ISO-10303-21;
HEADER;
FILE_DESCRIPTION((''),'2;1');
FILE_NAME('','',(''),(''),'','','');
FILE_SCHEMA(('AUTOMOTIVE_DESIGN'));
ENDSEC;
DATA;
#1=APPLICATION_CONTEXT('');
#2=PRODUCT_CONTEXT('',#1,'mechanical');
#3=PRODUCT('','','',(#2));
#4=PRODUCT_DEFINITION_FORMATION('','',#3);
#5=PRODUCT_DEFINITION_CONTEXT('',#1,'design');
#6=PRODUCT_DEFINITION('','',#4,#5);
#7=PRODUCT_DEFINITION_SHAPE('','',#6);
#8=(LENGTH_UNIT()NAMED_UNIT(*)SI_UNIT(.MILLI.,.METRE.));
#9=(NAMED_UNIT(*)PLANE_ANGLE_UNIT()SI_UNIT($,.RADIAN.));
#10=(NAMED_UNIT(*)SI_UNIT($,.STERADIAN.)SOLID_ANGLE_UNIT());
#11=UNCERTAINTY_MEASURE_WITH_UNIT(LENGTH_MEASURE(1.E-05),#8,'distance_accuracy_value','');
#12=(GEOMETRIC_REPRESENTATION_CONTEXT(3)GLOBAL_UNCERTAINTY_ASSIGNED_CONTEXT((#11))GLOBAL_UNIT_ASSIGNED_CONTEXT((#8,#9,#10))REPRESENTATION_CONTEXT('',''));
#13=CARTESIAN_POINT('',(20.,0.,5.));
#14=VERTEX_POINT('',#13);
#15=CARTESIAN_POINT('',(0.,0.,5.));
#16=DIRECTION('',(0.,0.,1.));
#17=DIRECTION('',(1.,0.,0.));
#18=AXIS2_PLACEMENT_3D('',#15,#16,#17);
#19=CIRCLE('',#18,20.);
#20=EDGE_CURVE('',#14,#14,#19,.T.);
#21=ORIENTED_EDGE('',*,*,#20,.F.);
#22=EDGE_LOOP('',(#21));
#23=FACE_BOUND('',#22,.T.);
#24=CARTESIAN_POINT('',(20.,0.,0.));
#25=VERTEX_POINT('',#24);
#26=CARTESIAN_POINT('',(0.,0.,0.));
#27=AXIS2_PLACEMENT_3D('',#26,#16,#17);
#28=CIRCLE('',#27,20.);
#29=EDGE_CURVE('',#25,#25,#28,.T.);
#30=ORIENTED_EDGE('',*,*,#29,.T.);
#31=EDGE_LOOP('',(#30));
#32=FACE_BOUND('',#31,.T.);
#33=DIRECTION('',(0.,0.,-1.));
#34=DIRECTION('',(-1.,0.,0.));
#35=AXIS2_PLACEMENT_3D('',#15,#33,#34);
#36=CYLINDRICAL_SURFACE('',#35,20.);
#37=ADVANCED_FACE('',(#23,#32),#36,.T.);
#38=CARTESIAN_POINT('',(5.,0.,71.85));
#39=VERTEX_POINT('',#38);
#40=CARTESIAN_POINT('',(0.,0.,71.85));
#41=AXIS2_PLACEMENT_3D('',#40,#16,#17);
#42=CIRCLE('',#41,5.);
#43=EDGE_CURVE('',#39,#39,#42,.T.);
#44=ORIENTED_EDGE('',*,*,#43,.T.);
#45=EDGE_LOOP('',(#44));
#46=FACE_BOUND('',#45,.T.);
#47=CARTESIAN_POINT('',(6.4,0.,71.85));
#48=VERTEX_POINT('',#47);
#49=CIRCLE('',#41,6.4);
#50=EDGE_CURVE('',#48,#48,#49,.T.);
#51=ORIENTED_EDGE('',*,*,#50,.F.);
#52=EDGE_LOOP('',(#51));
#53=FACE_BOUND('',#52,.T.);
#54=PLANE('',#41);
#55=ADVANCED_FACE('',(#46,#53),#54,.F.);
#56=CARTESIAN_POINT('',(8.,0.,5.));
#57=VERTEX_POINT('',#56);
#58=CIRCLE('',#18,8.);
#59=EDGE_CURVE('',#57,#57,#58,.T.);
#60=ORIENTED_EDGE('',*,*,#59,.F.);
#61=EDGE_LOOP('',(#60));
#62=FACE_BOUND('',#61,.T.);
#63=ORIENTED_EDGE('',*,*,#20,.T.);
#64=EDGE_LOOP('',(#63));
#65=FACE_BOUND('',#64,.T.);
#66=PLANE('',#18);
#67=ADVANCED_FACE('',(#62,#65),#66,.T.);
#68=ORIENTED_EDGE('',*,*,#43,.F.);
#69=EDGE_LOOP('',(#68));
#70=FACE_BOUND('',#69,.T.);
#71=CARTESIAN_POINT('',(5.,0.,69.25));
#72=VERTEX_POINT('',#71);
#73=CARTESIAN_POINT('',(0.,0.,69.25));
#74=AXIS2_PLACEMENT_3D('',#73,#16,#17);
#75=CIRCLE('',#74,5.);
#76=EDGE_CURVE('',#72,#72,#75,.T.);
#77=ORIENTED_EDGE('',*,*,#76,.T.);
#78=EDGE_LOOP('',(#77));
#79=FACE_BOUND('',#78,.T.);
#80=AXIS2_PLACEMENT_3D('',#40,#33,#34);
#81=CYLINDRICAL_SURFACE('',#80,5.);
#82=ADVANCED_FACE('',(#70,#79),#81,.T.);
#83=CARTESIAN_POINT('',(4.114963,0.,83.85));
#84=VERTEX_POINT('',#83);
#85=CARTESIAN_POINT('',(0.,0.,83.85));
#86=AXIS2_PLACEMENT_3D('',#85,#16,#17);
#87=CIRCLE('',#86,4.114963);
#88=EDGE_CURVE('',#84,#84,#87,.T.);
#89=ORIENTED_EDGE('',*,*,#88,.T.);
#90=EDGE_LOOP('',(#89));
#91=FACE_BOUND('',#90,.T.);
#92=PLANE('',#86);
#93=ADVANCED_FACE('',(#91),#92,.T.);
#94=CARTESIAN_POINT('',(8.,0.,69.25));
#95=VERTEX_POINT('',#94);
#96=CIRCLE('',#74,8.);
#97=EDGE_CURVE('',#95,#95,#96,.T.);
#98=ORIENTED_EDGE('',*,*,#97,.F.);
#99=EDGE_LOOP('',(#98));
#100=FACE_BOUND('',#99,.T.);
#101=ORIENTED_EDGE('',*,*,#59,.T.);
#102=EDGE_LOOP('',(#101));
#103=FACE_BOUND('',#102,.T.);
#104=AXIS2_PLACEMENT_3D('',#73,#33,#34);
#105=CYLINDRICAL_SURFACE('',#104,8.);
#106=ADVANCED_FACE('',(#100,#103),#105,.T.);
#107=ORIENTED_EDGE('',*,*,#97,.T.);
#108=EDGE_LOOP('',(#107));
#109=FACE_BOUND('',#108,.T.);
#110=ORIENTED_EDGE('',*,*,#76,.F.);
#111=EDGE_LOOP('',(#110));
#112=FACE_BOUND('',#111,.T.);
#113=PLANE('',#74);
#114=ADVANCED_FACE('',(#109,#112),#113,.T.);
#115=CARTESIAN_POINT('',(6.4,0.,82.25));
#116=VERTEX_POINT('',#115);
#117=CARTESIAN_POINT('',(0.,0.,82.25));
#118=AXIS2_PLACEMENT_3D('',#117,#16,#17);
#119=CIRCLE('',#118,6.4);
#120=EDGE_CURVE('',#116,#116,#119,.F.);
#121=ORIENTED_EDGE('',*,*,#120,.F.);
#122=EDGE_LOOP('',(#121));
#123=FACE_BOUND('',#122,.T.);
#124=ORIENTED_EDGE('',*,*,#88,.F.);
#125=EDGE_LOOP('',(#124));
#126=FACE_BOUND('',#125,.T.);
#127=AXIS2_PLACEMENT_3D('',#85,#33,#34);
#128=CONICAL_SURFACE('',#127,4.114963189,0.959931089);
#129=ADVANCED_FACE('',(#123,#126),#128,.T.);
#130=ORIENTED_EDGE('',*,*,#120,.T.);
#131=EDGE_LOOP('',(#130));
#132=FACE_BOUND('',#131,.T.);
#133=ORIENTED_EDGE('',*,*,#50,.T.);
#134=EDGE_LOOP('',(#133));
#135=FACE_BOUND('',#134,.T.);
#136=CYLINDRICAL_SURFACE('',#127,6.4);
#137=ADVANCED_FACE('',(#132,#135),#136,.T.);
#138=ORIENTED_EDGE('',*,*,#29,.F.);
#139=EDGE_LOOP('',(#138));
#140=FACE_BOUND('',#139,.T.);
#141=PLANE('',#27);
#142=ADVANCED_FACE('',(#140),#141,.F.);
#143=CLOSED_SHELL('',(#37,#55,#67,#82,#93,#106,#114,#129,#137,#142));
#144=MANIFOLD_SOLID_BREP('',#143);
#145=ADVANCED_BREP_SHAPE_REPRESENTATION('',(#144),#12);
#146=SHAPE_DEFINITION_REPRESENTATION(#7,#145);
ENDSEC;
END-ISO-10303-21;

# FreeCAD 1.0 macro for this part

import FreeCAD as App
import Part
import Sketcher
Q = App.Units.Quantity


def edges_at(feature, points):
    """Names of the edges that pass closest to the given points."""
    edges = feature.Shape.Edges
    near = lambda p: min(range(len(edges)), key=lambda i: edges[i].distToShape(Part.Vertex(*p))[0])
    return sorted({f"Edge{near(p) + 1}" for p in points})

doc = App.newDocument("Part")
params = doc.addObject("Spreadsheet::Sheet", "Params")
for row, (alias, value) in enumerate([
    ("sketch1_diameter", "40 mm"),
    ("pad1_length", "5 mm"),
    ("sketch2_diameter", "16 mm"),
    ("pad2_length", "64.25 mm"),
    ("sketch3_diameter", "10 mm"),
    ("pad3_length", "2.6 mm"),
    ("sketch4_diameter", "12.8 mm"),
    ("pad4_length", "12 mm"),
    ("chamfer_size", "1.6 mm"),
    ("chamfer_size2", "2.285037 mm"),
], start=1):
    params.set(f"A{row}", alias)
    params.set(f"B{row}", "=" + value)
    params.setAlias(f"B{row}", alias)

body = doc.addObject("PartDesign::Body", "Body")

# Sketch on XY plane
sketch1 = body.newObject("Sketcher::SketchObject", "Sketch")
sketch1.AttachmentSupport = (doc.getObject("XY_Plane"), [""])
sketch1.MapMode = "FlatFace"
sketch1.addGeometry(Part.Circle(App.Vector(0, 0, 0), App.Vector(0, 0, 1), 20), False)
sketch1.addConstraint([
    Sketcher.Constraint("Coincident", 0, 3, -1, 1),
    Sketcher.Constraint("Diameter", 0, Q("40 mm")),
])
sketch1.setExpression("Constraints[1]", "Params.sketch1_diameter")
pad1 = body.newObject("PartDesign::Pad", "Pad")
pad1.Profile = sketch1
pad1.setExpression("Length", "Params.pad1_length")

# Sketch on XY plane
sketch2 = body.newObject("Sketcher::SketchObject", "Sketch001")
sketch2.AttachmentSupport = (doc.getObject("XY_Plane"), [""])
sketch2.MapMode = "FlatFace"
sketch2.AttachmentOffset = App.Placement(App.Vector(0, 0, 5), App.Rotation())
sketch2.addGeometry(Part.Circle(App.Vector(0, 0, 0), App.Vector(0, 0, 1), 8), False)
sketch2.addConstraint([
    Sketcher.Constraint("Coincident", 0, 3, -1, 1),
    Sketcher.Constraint("Diameter", 0, Q("16 mm")),
])
sketch2.setExpression("Constraints[1]", "Params.sketch2_diameter")
pad2 = body.newObject("PartDesign::Pad", "Pad001")
pad2.Profile = sketch2
pad2.setExpression("Length", "Params.pad2_length")

# Sketch on XY plane
sketch3 = body.newObject("Sketcher::SketchObject", "Sketch002")
sketch3.AttachmentSupport = (doc.getObject("XY_Plane"), [""])
sketch3.MapMode = "FlatFace"
sketch3.AttachmentOffset = App.Placement(App.Vector(0, 0, 69.25), App.Rotation())
sketch3.addGeometry(Part.Circle(App.Vector(0, 0, 0), App.Vector(0, 0, 1), 5), False)
sketch3.addConstraint([
    Sketcher.Constraint("Coincident", 0, 3, -1, 1),
    Sketcher.Constraint("Diameter", 0, Q("10 mm")),
])
sketch3.setExpression("Constraints[1]", "Params.sketch3_diameter")
pad3 = body.newObject("PartDesign::Pad", "Pad002")
pad3.Profile = sketch3
pad3.setExpression("Length", "Params.pad3_length")

# Sketch on XY plane
sketch4 = body.newObject("Sketcher::SketchObject", "Sketch003")
sketch4.AttachmentSupport = (doc.getObject("XY_Plane"), [""])
sketch4.MapMode = "FlatFace"
sketch4.AttachmentOffset = App.Placement(App.Vector(0, 0, 71.85), App.Rotation())
sketch4.addGeometry(Part.Circle(App.Vector(0, 0, 0), App.Vector(0, 0, 1), 6), False)
sketch4.addConstraint([
    Sketcher.Constraint("Coincident", 0, 3, -1, 1),
    Sketcher.Constraint("Diameter", 0, Q("12.8 mm")),
])
sketch4.setExpression("Constraints[1]", "Params.sketch4_diameter")
pad4 = body.newObject("PartDesign::Pad", "Pad003")
pad4.Profile = sketch4
pad4.setExpression("Length", "Params.pad4_length")
doc.recompute()

chamfer = body.newObject("PartDesign::Chamfer", "Chamfer")
chamfer.Base = (pad4, edges_at(pad4, [(-6.4, 0, 83.85)]))
chamfer.ChamferType = "Two distances"
chamfer.setExpression("Size", "Params.chamfer_size")
chamfer.setExpression("Size2", "Params.chamfer_size2")

doc.recompute()
